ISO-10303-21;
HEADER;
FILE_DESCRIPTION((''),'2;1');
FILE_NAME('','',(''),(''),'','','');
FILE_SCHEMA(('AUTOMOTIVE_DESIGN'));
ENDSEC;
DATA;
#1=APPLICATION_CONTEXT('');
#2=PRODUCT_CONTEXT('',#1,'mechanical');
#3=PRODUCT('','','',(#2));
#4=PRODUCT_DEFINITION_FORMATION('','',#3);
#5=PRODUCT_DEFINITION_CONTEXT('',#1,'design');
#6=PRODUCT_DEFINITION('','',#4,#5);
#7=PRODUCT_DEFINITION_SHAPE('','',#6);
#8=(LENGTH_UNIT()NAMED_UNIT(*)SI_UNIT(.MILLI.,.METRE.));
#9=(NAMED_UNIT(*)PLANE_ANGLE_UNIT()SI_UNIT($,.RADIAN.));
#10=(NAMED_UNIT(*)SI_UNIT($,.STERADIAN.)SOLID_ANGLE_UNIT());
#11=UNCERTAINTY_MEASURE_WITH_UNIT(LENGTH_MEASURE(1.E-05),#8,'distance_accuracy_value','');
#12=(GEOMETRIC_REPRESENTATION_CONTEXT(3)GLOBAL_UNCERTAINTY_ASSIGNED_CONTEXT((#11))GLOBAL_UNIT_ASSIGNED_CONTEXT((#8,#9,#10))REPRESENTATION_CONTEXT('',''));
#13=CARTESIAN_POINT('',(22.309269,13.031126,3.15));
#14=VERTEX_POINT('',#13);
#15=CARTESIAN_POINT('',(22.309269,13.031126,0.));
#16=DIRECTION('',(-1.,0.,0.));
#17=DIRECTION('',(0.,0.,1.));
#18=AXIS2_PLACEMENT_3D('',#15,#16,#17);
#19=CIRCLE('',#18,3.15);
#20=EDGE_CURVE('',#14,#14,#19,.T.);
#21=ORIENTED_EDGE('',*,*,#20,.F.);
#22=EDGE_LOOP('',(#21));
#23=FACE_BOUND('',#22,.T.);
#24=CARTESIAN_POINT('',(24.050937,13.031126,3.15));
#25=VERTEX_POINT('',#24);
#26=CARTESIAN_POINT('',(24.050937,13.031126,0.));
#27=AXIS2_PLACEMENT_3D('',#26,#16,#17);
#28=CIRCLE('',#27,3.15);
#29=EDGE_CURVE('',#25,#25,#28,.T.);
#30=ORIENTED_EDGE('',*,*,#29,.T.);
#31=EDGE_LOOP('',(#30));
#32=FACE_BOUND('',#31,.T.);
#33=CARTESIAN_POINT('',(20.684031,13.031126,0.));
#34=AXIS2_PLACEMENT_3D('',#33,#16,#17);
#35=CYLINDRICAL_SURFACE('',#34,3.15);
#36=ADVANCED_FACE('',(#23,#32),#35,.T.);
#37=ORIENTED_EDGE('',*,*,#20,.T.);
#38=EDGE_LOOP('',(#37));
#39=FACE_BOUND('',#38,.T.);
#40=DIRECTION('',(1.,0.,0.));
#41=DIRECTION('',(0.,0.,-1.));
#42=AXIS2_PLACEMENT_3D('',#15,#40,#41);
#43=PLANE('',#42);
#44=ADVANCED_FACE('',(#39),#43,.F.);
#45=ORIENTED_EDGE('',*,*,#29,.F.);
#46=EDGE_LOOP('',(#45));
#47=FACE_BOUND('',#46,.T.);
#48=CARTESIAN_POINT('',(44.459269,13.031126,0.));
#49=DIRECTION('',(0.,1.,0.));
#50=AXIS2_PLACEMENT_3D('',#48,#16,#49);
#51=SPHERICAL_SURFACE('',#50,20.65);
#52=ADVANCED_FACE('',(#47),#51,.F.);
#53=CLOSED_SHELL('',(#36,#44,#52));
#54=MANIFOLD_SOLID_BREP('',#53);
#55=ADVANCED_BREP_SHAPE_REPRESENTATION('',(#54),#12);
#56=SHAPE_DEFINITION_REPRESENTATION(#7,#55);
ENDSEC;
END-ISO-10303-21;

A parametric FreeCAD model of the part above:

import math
import FreeCAD as App
import Part
import Sketcher

V = App.Vector

doc = App.newDocument("Part")
params = doc.addObject("Spreadsheet::Sheet", "Params")
for row, (alias, value) in enumerate([
    ("sketch1_radius", "20.65 mm"),
    ("sketch1_width", "1.5 mm"),
    ("sketch1_height", "3.15 mm"),
    ("revolution_angle", "360 deg"),
], start=1):
    params.set(f"A{row}", alias)
    params.set(f"B{row}", "=" + value)
    params.setAlias(f"B{row}", alias)

body = doc.addObject("PartDesign::Body", "Body")

sketch1 = body.newObject("Sketcher::SketchObject", "Sketch")
sketch1.AttachmentSupport = (doc.getObject("XY_Plane"), [""])
sketch1.MapMode = "FlatFace"
sketch1.addGeometry(Part.LineSegment(V(22.309269, 16.181126, 0), V(22.309269, 13.031126, 0)), False)
sketch1.addGeometry(Part.LineSegment(V(22.309269, 13.031126, 0), V(23.809269, 13.031126, 0)), False)
sketch1.addGeometry(Part.ArcOfCircle(Part.Circle(V(44.459269, 13.031126, 0), V(0, 0, 1), 20.65), math.radians(171.22571), math.radians(180)), False)
sketch1.addGeometry(Part.LineSegment(V(24.050937, 16.181126, 0), V(22.309269, 16.181126, 0)), False)
sketch1.addGeometry(Part.LineSegment(V(22.309269, 13.031126, 0), V(44.459269, 13.031126, 0)), True)
sketch1.addConstraint(Sketcher.Constraint("Coincident", 0, 2, 1, 1))
sketch1.addConstraint(Sketcher.Constraint("Coincident", 1, 2, 2, 2))
sketch1.addConstraint(Sketcher.Constraint("Coincident", 2, 1, 3, 1))
sketch1.addConstraint(Sketcher.Constraint("Coincident", 3, 2, 0, 1))
sketch1.addConstraint(Sketcher.Constraint("Vertical", 0))
sketch1.addConstraint(Sketcher.Constraint("Horizontal", 1))
sketch1.addConstraint(Sketcher.Constraint("Horizontal", 3))
sketch1.addConstraint(Sketcher.Constraint("Horizontal", 4))
sketch1.addConstraint(Sketcher.Constraint("Coincident", 4, 1, 0, 2))
sketch1.addConstraint(Sketcher.Constraint("Coincident", 4, 2, 2, 3))
sketch1.addConstraint(Sketcher.Constraint("Radius", 2, 20.65))
sketch1.addConstraint(Sketcher.Constraint("DistanceX", 1, 1, 1, 2, 1.5))
sketch1.addConstraint(Sketcher.Constraint("DistanceY", 0, 2, 0, 1, 3.15))
sketch1.addConstraint(Sketcher.Constraint("DistanceX", -1, 1, 2, 3, 44.459269))
sketch1.addConstraint(Sketcher.Constraint("DistanceY", -1, 1, 2, 3, 13.031126))
sketch1.setExpression("Constraints[10]", "Params.sketch1_radius")
sketch1.setExpression("Constraints[11]", "Params.sketch1_width")
sketch1.setExpression("Constraints[12]", "Params.sketch1_height")
revolution = body.newObject("PartDesign::Revolution", "Revolution")
revolution.Profile = sketch1
revolution.ReferenceAxis = (sketch1, ["Axis0"])
revolution.setExpression("Angle", "Params.revolution_angle")

doc.recompute()
